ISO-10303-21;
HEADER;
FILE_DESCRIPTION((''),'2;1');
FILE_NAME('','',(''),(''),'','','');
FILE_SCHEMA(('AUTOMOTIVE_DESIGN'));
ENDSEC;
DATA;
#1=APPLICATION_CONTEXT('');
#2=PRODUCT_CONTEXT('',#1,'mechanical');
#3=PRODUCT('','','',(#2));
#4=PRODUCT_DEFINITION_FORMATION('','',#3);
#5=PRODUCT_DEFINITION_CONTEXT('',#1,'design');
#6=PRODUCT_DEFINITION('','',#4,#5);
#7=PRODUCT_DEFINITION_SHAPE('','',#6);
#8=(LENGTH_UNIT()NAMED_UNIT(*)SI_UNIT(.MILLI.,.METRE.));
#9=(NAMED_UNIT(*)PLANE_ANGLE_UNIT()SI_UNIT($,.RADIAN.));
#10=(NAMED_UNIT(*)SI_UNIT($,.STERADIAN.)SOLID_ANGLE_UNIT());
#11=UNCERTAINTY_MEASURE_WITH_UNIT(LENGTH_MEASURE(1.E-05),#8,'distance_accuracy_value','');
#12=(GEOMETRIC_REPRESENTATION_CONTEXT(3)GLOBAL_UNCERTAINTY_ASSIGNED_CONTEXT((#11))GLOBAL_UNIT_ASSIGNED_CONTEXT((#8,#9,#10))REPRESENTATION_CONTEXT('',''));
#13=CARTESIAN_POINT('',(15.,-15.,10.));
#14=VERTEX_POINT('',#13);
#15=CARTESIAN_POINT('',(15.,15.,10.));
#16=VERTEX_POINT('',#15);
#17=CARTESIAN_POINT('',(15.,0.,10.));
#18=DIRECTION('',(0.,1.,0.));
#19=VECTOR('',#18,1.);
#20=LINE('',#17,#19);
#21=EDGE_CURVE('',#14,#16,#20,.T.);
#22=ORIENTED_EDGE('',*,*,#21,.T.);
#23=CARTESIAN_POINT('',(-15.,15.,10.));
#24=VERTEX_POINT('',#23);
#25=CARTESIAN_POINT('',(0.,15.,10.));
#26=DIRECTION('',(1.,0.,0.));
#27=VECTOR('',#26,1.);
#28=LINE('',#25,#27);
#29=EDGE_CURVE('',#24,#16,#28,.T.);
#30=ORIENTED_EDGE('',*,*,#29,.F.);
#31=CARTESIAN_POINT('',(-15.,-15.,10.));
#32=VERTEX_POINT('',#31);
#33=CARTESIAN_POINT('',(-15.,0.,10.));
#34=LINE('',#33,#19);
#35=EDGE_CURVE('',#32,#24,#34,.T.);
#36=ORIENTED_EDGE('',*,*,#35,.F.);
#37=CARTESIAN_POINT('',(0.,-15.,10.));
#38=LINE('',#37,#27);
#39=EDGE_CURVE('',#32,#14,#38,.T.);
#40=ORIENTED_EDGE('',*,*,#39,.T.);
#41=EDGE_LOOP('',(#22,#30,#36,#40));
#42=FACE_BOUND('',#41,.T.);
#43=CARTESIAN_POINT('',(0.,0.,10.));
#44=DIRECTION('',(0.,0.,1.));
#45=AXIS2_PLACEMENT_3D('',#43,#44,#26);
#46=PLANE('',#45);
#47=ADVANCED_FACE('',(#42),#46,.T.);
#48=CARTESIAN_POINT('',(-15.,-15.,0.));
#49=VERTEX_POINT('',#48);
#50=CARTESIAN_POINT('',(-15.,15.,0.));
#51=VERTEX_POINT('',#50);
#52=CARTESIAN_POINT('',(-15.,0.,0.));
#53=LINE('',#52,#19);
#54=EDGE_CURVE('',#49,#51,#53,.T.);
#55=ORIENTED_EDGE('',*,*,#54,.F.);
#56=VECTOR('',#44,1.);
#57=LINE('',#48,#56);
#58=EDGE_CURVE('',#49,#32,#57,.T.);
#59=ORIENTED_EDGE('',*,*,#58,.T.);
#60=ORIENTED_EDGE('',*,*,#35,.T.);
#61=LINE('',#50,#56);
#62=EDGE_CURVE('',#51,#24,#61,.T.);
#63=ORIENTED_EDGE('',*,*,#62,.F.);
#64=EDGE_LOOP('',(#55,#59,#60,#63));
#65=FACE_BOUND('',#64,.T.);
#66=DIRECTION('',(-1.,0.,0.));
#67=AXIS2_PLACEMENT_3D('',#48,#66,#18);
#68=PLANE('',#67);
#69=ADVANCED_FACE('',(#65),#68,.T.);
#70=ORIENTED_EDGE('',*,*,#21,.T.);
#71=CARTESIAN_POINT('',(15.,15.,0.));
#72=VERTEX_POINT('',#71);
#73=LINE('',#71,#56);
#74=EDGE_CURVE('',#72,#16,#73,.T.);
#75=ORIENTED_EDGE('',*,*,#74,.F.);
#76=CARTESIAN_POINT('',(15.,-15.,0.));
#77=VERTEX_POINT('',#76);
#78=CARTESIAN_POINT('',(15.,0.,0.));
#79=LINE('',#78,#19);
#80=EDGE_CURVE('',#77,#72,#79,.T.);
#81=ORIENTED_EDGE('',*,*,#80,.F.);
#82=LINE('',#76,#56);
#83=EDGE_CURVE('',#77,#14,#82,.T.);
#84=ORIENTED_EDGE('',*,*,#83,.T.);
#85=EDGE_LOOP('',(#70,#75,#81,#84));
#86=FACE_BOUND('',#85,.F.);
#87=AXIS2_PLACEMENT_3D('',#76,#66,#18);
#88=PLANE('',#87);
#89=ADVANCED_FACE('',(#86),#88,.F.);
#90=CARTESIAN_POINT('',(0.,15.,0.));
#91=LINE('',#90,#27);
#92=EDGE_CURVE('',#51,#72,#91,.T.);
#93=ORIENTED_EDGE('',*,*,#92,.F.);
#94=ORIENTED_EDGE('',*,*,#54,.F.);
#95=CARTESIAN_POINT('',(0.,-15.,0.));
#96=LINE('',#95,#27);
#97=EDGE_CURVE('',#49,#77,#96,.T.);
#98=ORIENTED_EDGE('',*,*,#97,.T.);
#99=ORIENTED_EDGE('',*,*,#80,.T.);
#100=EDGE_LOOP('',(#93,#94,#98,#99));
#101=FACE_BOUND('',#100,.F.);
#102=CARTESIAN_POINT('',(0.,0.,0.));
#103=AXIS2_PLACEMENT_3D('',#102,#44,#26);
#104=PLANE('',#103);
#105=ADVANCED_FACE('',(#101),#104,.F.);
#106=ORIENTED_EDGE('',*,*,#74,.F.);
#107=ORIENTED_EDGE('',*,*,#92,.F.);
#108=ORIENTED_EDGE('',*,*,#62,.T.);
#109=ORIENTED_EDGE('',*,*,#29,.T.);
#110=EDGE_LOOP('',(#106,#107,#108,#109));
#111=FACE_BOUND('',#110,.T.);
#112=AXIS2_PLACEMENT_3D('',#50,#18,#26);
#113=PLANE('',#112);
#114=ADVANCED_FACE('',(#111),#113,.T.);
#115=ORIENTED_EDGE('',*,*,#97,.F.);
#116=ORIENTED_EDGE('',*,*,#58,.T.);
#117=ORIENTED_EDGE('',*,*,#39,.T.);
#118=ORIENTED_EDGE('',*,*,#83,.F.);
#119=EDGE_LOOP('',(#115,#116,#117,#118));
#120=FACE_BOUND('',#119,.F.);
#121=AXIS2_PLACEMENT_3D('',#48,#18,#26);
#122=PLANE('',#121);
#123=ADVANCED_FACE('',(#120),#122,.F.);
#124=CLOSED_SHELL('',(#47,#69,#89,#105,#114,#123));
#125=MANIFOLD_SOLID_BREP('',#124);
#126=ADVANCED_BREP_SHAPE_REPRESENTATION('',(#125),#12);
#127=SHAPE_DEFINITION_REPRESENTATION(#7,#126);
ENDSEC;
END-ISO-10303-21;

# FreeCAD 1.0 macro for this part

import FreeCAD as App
import Part
import Sketcher

V = App.Vector


def add_polygon(sketch, points):
    """Adds a closed chain of lines whose ends are joined by coincident constraints."""
    first, n = sketch.GeometryCount, len(points)
    for a, b in zip(points, points[1:] + points[:1]):
        sketch.addGeometry(Part.LineSegment(App.Vector(*a, 0), App.Vector(*b, 0)), False)
    for i in range(n):
        sketch.addConstraint(Sketcher.Constraint("Coincident", first + i, 2, first + (i + 1) % n, 1))

doc = App.newDocument("Part")
body = doc.addObject("PartDesign::Body", "Body")

sketch1 = body.newObject("Sketcher::SketchObject", "Sketch")
sketch1.AttachmentSupport = (doc.getObject("XY_Plane"), [""])
sketch1.MapMode = "FlatFace"
add_polygon(sketch1, [(-15, 15), (-15, -15), (15, -15), (15, 15)])
sketch1.addConstraint([
    Sketcher.Constraint("Vertical", 0),
    Sketcher.Constraint("Horizontal", 1),
    Sketcher.Constraint("Vertical", 2),
    Sketcher.Constraint("Horizontal", 3),
    Sketcher.Constraint("Symmetric", 0, 2, 2, 2, -1, 1),
    Sketcher.Constraint("Equal", 3, 0),
    Sketcher.Constraint("DistanceX", 1, 1, 1, 2, 30.0),
])
pad1 = body.newObject("PartDesign::Pad", "Pad")
pad1.Profile = sketch1
pad1.Length = 10

doc.recompute()
